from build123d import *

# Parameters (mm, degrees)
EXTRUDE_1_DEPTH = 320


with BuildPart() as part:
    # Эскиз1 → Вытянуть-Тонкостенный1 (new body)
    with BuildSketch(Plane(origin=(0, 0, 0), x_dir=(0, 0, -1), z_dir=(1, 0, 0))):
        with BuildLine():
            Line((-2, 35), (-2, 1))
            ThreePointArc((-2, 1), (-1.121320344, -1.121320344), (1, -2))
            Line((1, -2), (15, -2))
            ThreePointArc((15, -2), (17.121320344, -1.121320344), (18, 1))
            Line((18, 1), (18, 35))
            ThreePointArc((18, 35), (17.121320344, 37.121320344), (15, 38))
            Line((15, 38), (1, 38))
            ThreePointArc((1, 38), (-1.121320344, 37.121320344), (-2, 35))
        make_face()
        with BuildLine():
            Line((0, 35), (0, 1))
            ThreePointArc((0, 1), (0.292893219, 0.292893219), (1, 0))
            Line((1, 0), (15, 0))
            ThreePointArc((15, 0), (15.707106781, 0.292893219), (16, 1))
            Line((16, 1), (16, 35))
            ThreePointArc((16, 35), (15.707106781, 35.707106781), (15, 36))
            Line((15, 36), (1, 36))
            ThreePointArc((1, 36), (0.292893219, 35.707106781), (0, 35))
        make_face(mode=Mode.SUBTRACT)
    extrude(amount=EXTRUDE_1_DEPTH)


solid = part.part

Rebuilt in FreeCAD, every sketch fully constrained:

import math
import FreeCAD as App
import Part
import Sketcher
from FreeCAD import Vector
Q = App.Units.Quantity

doc = App.newDocument("Part")
params = doc.addObject("Spreadsheet::Sheet", "Params")
for row, (alias, value) in enumerate([
    ("sketch1_radius", "3 mm"),
    ("sketch1_radius2", "1 mm"),
    ("sketch1_width", "34 mm"),
    ("sketch1_height", "14 mm"),
    ("pad1_length", "320 mm"),
], start=1):
    params.set(f"A{row}", alias)
    params.set(f"B{row}", "=" + value)
    params.setAlias(f"B{row}", alias)

body = doc.addObject("PartDesign::Body", "Body")

sketch1 = body.newObject("Sketcher::SketchObject", "Sketch")
sketch1.AttachmentSupport = (doc.getObject("YZ_Plane"), [""])
sketch1.MapMode = "FlatFace"
sketch1.addGeometry([
    Part.LineSegment(Vector(35, 2, 0), Vector(1, 2, 0)),
    Part.ArcOfCircle(Part.Circle(Vector(1, -1, 0), Vector(0, 0, 1), 3), math.radians(90), math.radians(180)),
    Part.LineSegment(Vector(-2, -1, 0), Vector(-2, -15, 0)),
    Part.ArcOfCircle(Part.Circle(Vector(1, -15, 0), Vector(0, 0, 1), 3), math.radians(180), math.radians(270)),
    Part.LineSegment(Vector(1, -18, 0), Vector(35, -18, 0)),
    Part.ArcOfCircle(Part.Circle(Vector(35, -15, 0), Vector(0, 0, 1), 3), math.radians(-90), math.radians(0)),
    Part.LineSegment(Vector(38, -15, 0), Vector(38, -1, 0)),
    Part.ArcOfCircle(Part.Circle(Vector(35, -1, 0), Vector(0, 0, 1), 3), math.radians(0), math.radians(90)),
    Part.LineSegment(Vector(1, 0, 0), Vector(35, 0, 0)),
    Part.ArcOfCircle(Part.Circle(Vector(35, -1, 0), Vector(0, 0, 1), 1), math.radians(0), math.radians(90)),
    Part.LineSegment(Vector(36, -1, 0), Vector(36, -15, 0)),
    Part.ArcOfCircle(Part.Circle(Vector(35, -15, 0), Vector(0, 0, 1), 1), math.radians(-90), math.radians(0)),
    Part.LineSegment(Vector(35, -16, 0), Vector(1, -16, 0)),
    Part.ArcOfCircle(Part.Circle(Vector(1, -15, 0), Vector(0, 0, 1), 1), math.radians(-180), math.radians(-90)),
    Part.LineSegment(Vector(0, -15, 0), Vector(0, -1, 0)),
    Part.ArcOfCircle(Part.Circle(Vector(1, -1, 0), Vector(0, 0, 1), 1), math.radians(90), math.radians(180)),
], False)
sketch1.addConstraint([
    Sketcher.Constraint("Tangent", 0, 2, 1, 1),
    Sketcher.Constraint("Tangent", 1, 2, 2, 1),
    Sketcher.Constraint("Tangent", 2, 2, 3, 1),
    Sketcher.Constraint("Tangent", 3, 2, 4, 1),
    Sketcher.Constraint("Tangent", 4, 2, 5, 1),
    Sketcher.Constraint("Tangent", 5, 2, 6, 1),
    Sketcher.Constraint("Tangent", 6, 2, 7, 1),
    Sketcher.Constraint("Tangent", 7, 2, 0, 1),
    Sketcher.Constraint("Tangent", 8, 2, 9, 2),
    Sketcher.Constraint("Tangent", 9, 1, 10, 1),
    Sketcher.Constraint("Tangent", 10, 2, 11, 2),
    Sketcher.Constraint("Tangent", 11, 1, 12, 1),
    Sketcher.Constraint("Tangent", 12, 2, 13, 2),
    Sketcher.Constraint("Tangent", 13, 1, 14, 1),
    Sketcher.Constraint("Tangent", 14, 2, 15, 2),
    Sketcher.Constraint("Tangent", 15, 1, 8, 1),
    Sketcher.Constraint("Horizontal", 0),
    Sketcher.Constraint("Vertical", 2),
    Sketcher.Constraint("Horizontal", 4),
    Sketcher.Constraint("Vertical", 6),
    Sketcher.Constraint("Horizontal", 8),
    Sketcher.Constraint("Vertical", 10),
    Sketcher.Constraint("Horizontal", 12),
    Sketcher.Constraint("Vertical", 14),
    Sketcher.Constraint("Coincident", 9, 3, 7, 3),
    Sketcher.Constraint("Coincident", 11, 3, 5, 3),
    Sketcher.Constraint("Coincident", 13, 3, 3, 3),
    Sketcher.Constraint("Equal", 1, 3),
    Sketcher.Constraint("Equal", 3, 5),
    Sketcher.Constraint("Equal", 5, 7),
    Sketcher.Constraint("Equal", 13, 15),
    Sketcher.Constraint("PointOnObject", 8, 2, -1),
    Sketcher.Constraint("PointOnObject", 13, 1, -2),
    Sketcher.Constraint("Radius", 1, Q("3 mm")),
    Sketcher.Constraint("Radius", 9, Q("1 mm")),
    Sketcher.Constraint("DistanceX", 0, 2, 0, 1, Q("34 mm")),
    Sketcher.Constraint("DistanceY", 2, 2, 2, 1, Q("14 mm")),
])
sketch1.setExpression("Constraints[33]", "Params.sketch1_radius")
sketch1.setExpression("Constraints[34]", "Params.sketch1_radius2")
sketch1.setExpression("Constraints[35]", "Params.sketch1_width")
sketch1.setExpression("Constraints[36]", "Params.sketch1_height")
pad1 = body.newObject("PartDesign::Pad", "Pad")
pad1.Profile = sketch1
pad1.setExpression("Length", "Params.pad1_length")

doc.recompute()
